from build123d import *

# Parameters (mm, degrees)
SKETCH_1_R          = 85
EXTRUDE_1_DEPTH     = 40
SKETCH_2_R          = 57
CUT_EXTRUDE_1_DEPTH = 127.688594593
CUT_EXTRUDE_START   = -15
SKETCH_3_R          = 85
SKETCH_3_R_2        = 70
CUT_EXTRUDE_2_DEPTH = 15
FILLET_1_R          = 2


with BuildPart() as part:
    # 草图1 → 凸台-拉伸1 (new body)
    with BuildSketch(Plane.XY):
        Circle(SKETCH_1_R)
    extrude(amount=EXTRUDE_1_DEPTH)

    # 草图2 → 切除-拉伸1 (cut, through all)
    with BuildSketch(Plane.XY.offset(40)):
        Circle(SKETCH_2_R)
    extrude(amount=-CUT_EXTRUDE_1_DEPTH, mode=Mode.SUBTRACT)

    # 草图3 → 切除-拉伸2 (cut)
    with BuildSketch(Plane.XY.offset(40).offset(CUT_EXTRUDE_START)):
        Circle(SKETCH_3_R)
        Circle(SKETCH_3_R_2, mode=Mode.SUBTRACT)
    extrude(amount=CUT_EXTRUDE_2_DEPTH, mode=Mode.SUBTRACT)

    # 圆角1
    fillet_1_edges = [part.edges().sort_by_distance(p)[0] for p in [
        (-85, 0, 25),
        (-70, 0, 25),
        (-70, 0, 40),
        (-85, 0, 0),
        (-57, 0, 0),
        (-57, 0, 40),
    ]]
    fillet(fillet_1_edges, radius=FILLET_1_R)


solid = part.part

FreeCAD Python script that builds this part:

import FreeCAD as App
import Part
import Sketcher
Q = App.Units.Quantity


def edges_at(feature, points):
    """Names of the edges that pass closest to the given points."""
    edges = feature.Shape.Edges
    near = lambda p: min(range(len(edges)), key=lambda i: edges[i].distToShape(Part.Vertex(*p))[0])
    return sorted({f"Edge{near(p) + 1}" for p in points})

doc = App.newDocument("Part")
params = doc.addObject("Spreadsheet::Sheet", "Params")
for row, (alias, value) in enumerate([
    ("sketch1_diameter", "170 mm"),
    ("pad1_length", "40 mm"),
    ("sketch2_diameter", "114 mm"),
    ("sketch3_diameter", "170 mm"),
    ("sketch3_diameter2", "140 mm"),
    ("pocket2_length", "15 mm"),
    ("fillet_radius", "2 mm"),
], start=1):
    params.set(f"A{row}", alias)
    params.set(f"B{row}", "=" + value)
    params.setAlias(f"B{row}", alias)

body = doc.addObject("PartDesign::Body", "Body")

# Sketch on XY plane
sketch1 = doc.addObject("Sketcher::SketchObject", "Sketch")
body.addObject(sketch1)
sketch1.AttachmentSupport = (doc.XY_Plane, [""])
sketch1.MapMode = "FlatFace"
sketch1.addGeometry(Part.Circle(App.Vector(0, 0, 0), App.Vector(0, 0, 1), 85), False)
sketch1.addConstraint(Sketcher.Constraint("Coincident", 0, 3, -1, 1))
sketch1.addConstraint(Sketcher.Constraint("Diameter", 0, Q("170 mm")))
sketch1.setExpression("Constraints[1]", "Params.sketch1_diameter")
pad1 = doc.addObject("PartDesign::Pad", "Pad")
body.addObject(pad1)
pad1.Profile = sketch1
pad1.setExpression("Length", "Params.pad1_length")

# Sketch on XY plane
sketch2 = doc.addObject("Sketcher::SketchObject", "Sketch001")
body.addObject(sketch2)
sketch2.AttachmentSupport = (doc.XY_Plane, [""])
sketch2.MapMode = "FlatFace"
sketch2.AttachmentOffset = App.Placement(App.Vector(0, 0, 40), App.Rotation())
sketch2.addGeometry(Part.Circle(App.Vector(0, 0, 0), App.Vector(0, 0, 1), 57), False)
sketch2.addConstraint(Sketcher.Constraint("Coincident", 0, 3, -1, 1))
sketch2.addConstraint(Sketcher.Constraint("Diameter", 0, Q("114 mm")))
sketch2.setExpression("Constraints[1]", "Params.sketch2_diameter")
pocket1 = doc.addObject("PartDesign::Pocket", "Pocket")
body.addObject(pocket1)
pocket1.Profile = sketch2
pocket1.Type = "ThroughAll"

# Sketch on XY plane
sketch3 = doc.addObject("Sketcher::SketchObject", "Sketch002")
body.addObject(sketch3)
sketch3.AttachmentSupport = (doc.XY_Plane, [""])
sketch3.MapMode = "FlatFace"
sketch3.AttachmentOffset = App.Placement(App.Vector(0, 0, 25), App.Rotation())
sketch3.addGeometry(Part.Circle(App.Vector(0, 0, 0), App.Vector(0, 0, 1), 85), False)
sketch3.addGeometry(Part.Circle(App.Vector(0, 0, 0), App.Vector(0, 0, 1), 70), False)
sketch3.addConstraint(Sketcher.Constraint("Coincident", 0, 3, -1, 1))
sketch3.addConstraint(Sketcher.Constraint("Coincident", 1, 3, -1, 1))
sketch3.addConstraint(Sketcher.Constraint("Diameter", 0, Q("170 mm")))
sketch3.addConstraint(Sketcher.Constraint("Diameter", 1, Q("140 mm")))
sketch3.setExpression("Constraints[2]", "Params.sketch3_diameter")
sketch3.setExpression("Constraints[3]", "Params.sketch3_diameter2")
pocket2 = doc.addObject("PartDesign::Pocket", "Pocket001")
body.addObject(pocket2)
pocket2.Profile = sketch3
pocket2.setExpression("Length", "Params.pocket2_length")
pocket2.Reversed = True
doc.recompute()

fillet = doc.addObject("PartDesign::Fillet", "Fillet")
body.addObject(fillet)
fillet.Base = (pocket2, edges_at(pocket2, [
    (-85, 0, 25),
    (-70, 0, 25),
    (-70, 0, 40),
    (-85, 0, 0),
    (-57, 0, 0),
    (-57, 0, 40),
]))
fillet.setExpression("Radius", "Params.fillet_radius")

doc.recompute()
